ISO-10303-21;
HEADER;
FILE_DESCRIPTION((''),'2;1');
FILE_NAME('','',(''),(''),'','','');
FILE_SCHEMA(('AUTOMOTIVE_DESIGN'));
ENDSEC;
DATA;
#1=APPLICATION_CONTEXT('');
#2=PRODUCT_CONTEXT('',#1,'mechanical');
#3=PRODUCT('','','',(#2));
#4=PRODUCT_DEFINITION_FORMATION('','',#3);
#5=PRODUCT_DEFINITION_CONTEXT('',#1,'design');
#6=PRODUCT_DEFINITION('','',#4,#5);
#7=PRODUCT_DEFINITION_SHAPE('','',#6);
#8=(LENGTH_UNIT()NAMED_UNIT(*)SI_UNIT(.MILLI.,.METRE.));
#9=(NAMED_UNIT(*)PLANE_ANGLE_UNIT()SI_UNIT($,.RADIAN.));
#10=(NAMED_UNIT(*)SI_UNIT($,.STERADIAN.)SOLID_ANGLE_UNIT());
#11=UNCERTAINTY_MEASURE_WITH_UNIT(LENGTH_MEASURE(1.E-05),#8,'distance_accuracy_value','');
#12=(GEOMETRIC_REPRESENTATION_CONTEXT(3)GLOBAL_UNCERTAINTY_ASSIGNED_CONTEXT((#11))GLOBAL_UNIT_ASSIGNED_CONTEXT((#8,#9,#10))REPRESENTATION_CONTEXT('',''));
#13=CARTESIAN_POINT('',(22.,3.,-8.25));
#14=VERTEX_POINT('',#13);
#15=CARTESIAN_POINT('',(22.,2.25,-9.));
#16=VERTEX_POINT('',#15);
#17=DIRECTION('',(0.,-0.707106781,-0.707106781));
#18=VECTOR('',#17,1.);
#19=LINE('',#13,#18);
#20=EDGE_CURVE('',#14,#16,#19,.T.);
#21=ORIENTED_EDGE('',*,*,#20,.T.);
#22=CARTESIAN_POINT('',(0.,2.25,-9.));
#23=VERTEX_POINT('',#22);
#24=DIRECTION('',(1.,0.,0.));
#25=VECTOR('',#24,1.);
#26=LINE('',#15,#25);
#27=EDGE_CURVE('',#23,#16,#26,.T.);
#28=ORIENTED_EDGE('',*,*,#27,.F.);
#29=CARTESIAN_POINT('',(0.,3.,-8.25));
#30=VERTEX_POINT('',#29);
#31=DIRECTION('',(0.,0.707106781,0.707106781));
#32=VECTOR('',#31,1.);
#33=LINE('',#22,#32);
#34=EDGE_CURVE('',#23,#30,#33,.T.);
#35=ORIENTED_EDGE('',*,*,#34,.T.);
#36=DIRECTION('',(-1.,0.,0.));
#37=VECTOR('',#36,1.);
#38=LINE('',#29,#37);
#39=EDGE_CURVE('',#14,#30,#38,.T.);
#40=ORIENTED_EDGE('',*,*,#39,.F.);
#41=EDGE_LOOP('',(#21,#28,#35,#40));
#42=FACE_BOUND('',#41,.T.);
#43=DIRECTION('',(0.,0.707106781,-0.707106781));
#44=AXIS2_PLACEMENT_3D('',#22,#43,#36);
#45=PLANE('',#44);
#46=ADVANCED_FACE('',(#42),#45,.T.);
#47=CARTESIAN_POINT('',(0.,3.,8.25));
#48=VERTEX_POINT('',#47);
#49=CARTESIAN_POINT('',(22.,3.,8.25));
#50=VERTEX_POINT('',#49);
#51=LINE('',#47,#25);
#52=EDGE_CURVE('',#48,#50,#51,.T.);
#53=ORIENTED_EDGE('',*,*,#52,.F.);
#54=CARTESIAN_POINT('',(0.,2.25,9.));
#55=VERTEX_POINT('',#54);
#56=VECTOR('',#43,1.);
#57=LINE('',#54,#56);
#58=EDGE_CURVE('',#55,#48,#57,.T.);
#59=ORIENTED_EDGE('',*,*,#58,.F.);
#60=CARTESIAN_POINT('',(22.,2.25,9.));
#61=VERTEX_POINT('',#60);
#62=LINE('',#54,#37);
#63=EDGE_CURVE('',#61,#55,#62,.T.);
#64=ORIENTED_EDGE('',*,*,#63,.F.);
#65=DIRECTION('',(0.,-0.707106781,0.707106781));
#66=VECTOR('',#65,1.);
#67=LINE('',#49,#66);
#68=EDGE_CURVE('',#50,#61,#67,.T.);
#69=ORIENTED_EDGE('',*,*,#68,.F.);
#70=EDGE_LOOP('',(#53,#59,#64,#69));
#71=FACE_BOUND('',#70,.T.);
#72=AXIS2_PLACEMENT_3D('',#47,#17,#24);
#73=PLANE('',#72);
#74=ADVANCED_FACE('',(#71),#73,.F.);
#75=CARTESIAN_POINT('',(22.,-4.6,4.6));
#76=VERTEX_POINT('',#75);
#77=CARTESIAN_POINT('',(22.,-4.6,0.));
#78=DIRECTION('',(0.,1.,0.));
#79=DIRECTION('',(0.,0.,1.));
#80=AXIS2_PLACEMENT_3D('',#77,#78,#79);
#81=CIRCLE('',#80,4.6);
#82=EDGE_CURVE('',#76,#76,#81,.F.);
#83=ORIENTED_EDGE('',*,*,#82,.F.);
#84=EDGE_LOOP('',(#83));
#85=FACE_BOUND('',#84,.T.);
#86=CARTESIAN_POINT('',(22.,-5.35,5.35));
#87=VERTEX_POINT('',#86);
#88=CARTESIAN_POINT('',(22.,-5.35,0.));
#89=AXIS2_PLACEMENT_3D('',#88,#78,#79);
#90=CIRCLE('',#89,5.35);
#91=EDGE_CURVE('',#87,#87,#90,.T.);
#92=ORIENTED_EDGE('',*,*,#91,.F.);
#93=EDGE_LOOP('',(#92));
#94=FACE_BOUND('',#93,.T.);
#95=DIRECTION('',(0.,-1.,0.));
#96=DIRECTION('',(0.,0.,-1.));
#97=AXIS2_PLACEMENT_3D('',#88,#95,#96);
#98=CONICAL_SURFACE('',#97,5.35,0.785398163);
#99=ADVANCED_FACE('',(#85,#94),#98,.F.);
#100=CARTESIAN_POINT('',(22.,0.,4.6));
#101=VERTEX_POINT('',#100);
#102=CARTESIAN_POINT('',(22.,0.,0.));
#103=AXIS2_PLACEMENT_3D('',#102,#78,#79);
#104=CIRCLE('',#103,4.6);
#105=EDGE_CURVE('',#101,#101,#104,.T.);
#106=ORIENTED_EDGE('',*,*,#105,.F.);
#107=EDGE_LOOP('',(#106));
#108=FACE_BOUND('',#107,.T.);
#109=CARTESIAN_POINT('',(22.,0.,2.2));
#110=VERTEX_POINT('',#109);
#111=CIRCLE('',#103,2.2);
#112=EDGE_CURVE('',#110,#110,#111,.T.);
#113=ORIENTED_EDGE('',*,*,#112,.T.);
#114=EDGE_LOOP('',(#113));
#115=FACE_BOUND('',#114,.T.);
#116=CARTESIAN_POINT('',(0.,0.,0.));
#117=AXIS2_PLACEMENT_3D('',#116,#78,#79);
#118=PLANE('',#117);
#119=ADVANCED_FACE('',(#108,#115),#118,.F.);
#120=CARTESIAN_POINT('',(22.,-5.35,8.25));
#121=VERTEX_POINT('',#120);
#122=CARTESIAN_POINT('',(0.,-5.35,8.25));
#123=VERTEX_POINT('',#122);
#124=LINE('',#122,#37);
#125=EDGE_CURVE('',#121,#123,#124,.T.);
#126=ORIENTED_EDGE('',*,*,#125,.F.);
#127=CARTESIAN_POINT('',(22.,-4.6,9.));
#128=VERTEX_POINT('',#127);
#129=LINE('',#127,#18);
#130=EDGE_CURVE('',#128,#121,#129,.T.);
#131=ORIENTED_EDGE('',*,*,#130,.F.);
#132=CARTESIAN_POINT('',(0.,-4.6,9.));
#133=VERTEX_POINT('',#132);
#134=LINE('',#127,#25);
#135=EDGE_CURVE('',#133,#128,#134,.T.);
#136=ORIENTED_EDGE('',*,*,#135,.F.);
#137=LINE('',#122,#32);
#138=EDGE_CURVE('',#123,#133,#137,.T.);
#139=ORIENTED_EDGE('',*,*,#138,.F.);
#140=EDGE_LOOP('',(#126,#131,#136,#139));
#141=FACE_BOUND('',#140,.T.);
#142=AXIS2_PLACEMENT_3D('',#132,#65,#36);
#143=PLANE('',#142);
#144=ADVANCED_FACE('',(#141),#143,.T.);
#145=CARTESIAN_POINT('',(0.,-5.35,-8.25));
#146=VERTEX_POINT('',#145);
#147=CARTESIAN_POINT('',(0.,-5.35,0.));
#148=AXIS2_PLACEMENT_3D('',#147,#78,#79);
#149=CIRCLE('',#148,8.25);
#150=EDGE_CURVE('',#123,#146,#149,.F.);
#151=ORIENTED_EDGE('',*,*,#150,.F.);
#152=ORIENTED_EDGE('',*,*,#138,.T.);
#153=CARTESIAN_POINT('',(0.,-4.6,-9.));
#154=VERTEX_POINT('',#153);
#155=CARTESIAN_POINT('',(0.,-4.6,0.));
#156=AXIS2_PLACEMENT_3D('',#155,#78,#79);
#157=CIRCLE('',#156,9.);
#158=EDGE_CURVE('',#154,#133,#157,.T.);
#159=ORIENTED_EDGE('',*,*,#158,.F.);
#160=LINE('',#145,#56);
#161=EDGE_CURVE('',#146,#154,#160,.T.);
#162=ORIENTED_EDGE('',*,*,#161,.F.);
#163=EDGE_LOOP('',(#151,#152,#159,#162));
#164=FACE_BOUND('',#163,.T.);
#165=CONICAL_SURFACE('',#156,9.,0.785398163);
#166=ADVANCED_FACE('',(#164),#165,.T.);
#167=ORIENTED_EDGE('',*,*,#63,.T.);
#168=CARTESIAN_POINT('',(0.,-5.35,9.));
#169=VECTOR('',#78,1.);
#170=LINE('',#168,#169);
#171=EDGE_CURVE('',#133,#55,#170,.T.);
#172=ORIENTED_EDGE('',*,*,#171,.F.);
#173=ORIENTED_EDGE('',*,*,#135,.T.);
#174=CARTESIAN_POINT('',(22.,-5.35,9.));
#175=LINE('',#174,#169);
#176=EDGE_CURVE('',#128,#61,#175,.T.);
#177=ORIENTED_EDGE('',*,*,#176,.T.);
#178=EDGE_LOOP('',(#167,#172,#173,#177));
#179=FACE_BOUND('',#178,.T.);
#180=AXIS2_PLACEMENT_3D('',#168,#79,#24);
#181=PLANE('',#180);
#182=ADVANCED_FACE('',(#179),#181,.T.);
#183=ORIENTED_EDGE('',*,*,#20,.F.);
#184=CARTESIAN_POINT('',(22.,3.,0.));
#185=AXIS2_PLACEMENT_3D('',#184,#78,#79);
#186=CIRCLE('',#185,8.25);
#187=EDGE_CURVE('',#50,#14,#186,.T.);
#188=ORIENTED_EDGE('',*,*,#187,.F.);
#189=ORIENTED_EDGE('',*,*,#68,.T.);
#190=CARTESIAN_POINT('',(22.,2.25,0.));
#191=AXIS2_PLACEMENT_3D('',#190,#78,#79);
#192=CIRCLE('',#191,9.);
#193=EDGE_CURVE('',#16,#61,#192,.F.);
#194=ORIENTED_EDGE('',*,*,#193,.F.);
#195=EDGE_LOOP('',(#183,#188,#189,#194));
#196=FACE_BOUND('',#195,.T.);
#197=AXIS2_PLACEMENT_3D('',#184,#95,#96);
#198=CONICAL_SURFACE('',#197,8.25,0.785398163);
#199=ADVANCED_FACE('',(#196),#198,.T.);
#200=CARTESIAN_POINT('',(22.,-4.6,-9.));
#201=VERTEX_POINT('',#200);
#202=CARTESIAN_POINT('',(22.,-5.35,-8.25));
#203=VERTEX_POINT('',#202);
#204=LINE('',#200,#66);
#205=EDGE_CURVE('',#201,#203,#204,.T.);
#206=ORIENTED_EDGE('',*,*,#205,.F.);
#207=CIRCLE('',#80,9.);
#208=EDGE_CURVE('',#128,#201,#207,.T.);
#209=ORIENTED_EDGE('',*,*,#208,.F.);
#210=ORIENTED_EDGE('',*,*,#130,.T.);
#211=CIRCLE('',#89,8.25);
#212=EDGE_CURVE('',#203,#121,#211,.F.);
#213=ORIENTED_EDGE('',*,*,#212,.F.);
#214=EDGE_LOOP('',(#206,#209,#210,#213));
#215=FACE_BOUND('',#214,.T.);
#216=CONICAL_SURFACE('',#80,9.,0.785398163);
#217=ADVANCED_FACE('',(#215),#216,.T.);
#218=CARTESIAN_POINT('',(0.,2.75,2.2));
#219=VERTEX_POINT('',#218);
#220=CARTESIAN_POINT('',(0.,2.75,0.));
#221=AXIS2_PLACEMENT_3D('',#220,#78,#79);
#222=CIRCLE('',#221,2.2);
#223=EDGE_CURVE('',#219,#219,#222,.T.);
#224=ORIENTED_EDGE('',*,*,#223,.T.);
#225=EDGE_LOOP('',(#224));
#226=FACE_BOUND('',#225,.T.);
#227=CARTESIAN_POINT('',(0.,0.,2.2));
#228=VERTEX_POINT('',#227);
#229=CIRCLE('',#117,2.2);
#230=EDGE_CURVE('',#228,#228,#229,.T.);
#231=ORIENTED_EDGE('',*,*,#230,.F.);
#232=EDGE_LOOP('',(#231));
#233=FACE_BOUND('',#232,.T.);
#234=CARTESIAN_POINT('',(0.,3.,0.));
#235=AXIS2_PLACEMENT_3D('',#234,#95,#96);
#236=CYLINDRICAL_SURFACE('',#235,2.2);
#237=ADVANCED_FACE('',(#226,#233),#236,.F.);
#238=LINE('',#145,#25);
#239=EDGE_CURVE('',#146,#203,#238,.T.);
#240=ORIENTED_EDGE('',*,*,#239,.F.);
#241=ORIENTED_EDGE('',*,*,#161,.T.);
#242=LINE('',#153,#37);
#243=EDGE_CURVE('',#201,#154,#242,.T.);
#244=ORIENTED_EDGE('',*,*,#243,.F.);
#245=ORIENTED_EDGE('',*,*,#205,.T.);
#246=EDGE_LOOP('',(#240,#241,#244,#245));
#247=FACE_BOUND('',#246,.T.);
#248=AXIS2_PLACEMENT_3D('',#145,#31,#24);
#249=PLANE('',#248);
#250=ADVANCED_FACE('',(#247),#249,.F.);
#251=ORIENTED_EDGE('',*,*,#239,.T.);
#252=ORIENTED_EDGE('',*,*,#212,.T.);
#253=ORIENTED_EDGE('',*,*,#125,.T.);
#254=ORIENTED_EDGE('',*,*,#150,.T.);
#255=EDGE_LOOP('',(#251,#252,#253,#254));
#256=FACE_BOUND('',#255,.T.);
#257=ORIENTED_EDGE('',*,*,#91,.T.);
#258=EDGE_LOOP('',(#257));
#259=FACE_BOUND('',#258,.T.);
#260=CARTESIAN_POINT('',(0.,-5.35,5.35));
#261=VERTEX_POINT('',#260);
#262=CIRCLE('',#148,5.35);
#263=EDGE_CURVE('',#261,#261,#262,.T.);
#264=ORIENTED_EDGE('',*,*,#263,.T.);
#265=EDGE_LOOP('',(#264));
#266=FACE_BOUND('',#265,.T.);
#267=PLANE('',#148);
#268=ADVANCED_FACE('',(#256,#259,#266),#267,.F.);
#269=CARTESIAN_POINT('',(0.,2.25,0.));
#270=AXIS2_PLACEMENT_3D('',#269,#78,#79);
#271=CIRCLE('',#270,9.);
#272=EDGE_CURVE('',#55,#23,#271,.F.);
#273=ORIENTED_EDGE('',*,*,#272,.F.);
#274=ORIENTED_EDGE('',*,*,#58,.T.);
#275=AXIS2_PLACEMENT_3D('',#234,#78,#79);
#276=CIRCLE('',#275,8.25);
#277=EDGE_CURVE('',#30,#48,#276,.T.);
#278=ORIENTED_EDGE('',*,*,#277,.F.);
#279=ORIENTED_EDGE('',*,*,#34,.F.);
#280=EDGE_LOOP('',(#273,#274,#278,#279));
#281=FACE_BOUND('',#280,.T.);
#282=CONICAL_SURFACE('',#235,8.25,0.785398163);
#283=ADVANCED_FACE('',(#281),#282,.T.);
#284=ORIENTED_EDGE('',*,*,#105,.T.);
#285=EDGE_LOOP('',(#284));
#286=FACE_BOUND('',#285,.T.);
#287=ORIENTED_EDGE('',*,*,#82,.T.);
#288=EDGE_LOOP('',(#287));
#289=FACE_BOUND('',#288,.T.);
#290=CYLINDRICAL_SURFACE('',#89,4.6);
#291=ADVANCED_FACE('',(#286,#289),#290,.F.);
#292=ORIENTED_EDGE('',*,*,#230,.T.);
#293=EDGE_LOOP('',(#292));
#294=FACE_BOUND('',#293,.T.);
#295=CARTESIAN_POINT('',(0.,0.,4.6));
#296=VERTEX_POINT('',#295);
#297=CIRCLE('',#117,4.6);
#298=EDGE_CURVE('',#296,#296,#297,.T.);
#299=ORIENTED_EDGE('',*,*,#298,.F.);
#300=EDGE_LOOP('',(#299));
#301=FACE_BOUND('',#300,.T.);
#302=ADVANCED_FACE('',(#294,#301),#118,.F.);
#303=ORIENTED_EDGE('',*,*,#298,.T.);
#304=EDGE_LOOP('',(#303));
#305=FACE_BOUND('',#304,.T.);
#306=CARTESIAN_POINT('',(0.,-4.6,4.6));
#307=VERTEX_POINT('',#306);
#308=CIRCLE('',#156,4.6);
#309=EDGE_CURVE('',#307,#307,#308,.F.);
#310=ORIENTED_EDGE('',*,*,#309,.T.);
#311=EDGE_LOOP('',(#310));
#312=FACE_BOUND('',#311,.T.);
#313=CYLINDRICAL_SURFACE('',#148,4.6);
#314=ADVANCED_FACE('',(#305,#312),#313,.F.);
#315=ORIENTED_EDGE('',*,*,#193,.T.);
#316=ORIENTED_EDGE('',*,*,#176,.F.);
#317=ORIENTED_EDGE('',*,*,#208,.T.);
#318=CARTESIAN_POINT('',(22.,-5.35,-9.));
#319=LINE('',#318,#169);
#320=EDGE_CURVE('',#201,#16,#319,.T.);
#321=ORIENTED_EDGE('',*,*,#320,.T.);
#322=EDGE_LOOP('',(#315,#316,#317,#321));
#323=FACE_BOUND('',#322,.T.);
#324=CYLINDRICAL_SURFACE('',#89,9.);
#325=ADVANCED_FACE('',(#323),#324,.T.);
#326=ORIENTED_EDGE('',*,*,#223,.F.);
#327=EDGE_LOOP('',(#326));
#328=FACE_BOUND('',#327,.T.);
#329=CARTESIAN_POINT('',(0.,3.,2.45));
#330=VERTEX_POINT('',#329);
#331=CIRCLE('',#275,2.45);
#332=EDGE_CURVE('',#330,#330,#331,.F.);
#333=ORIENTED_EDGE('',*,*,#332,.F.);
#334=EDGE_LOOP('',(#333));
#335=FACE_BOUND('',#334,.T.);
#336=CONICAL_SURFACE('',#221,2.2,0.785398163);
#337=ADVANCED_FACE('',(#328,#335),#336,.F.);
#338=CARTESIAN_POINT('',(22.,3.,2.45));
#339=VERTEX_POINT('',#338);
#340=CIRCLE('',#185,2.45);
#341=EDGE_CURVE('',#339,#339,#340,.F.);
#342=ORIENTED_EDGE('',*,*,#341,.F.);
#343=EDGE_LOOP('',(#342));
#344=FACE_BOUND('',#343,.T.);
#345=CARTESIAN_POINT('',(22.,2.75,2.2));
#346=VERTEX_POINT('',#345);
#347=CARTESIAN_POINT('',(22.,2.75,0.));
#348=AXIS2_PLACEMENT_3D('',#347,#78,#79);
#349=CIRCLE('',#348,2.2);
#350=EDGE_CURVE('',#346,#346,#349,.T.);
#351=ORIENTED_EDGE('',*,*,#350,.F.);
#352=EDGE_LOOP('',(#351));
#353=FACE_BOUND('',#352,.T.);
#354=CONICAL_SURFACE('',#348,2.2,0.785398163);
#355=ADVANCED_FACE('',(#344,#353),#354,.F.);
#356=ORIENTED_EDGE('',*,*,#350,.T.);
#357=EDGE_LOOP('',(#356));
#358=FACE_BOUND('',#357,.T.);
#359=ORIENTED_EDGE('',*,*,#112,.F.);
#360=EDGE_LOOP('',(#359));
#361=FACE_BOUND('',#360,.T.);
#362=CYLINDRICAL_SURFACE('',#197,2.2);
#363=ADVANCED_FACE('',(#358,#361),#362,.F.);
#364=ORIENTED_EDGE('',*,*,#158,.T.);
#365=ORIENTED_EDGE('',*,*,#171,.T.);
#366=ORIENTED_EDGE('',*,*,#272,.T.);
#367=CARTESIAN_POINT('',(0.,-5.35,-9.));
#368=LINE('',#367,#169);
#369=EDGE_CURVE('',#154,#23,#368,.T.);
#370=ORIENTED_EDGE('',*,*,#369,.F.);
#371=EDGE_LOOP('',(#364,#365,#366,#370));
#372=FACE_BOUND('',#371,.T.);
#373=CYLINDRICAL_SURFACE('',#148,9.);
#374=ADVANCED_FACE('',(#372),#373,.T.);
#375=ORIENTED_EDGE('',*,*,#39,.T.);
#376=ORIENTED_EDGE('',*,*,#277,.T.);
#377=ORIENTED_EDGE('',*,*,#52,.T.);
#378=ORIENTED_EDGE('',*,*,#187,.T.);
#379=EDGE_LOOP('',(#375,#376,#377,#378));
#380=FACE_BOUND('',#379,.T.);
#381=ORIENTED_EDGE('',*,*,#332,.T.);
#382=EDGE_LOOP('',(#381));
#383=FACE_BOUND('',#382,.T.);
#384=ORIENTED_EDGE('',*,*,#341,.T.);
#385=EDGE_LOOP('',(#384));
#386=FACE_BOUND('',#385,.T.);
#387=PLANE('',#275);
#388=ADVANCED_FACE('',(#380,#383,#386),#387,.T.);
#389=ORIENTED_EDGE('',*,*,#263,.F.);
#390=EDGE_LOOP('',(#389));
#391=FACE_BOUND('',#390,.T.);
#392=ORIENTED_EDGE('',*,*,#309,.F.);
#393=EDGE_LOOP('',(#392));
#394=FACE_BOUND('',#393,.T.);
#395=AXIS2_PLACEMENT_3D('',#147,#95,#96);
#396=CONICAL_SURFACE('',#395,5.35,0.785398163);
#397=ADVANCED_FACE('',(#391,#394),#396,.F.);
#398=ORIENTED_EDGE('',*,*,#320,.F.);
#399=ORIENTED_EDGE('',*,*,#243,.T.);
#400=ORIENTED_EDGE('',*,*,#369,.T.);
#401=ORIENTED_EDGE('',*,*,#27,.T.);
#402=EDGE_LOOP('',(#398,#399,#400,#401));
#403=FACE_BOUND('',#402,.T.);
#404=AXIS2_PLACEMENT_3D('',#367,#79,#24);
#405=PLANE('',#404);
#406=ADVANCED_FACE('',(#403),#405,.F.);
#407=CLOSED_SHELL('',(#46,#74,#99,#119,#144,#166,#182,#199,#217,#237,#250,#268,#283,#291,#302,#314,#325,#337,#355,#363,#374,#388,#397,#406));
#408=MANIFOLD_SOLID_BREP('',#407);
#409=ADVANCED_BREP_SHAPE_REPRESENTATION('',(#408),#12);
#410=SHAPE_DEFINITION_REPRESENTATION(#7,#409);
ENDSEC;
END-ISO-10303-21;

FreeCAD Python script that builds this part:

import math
import FreeCAD as App
import Part
import Sketcher
from FreeCAD import Vector
Q = App.Units.Quantity


def edges_at(feature, points):
    """Names of the edges that pass closest to the given points."""
    edges = feature.Shape.Edges
    near = lambda p: min(range(len(edges)), key=lambda i: edges[i].distToShape(Part.Vertex(*p))[0])
    return sorted({f"Edge{near(p) + 1}" for p in points})

doc = App.newDocument("Part")
params = doc.addObject("Spreadsheet::Sheet", "Params")
for row, (alias, value) in enumerate([
    ("sketch1_radius", "9 mm"),
    ("sketch1_diameter", "9.2 mm"),
    ("sketch1_width", "22 mm"),
    ("pad1_length", "5.35 mm"),
    ("sketch2_radius", "9 mm"),
    ("sketch2_diameter", "4.4 mm"),
    ("sketch2_width", "22 mm"),
    ("pad2_length", "3 mm"),
    ("chamfer_size", "0.75 mm"),
    ("chamfer2_size", "0.25 mm"),
], start=1):
    params.set(f"A{row}", alias)
    params.set(f"B{row}", "=" + value)
    params.setAlias(f"B{row}", alias)

body = doc.addObject("PartDesign::Body", "Body")

sketch1 = doc.addObject("Sketcher::SketchObject", "Sketch")
body.addObject(sketch1)
sketch1.AttachmentSupport = (doc.XZ_Plane, [""])
sketch1.MapMode = "FlatFace"
sketch1.addGeometry(Part.LineSegment(Vector(22, -9, 0), Vector(0, -9, 0)), False)
sketch1.addGeometry(Part.ArcOfCircle(Part.Circle(Vector(0, 0, 0), Vector(0, 0, 1), 9), math.radians(90), math.radians(270)), False)
sketch1.addGeometry(Part.LineSegment(Vector(0, 9, 0), Vector(22, 9, 0)), False)
sketch1.addGeometry(Part.ArcOfCircle(Part.Circle(Vector(22, 0, 0), Vector(0, 0, 1), 9), math.radians(-90), math.radians(90)), False)
sketch1.addGeometry(Part.Circle(Vector(22, 0, 0), Vector(0, 0, 1), 4.6), False)
sketch1.addGeometry(Part.Circle(Vector(0, 0, 0), Vector(0, 0, 1), 4.6), False)
sketch1.addConstraint(Sketcher.Constraint("Tangent", 0, 2, 1, 2))
sketch1.addConstraint(Sketcher.Constraint("Tangent", 1, 1, 2, 1))
sketch1.addConstraint(Sketcher.Constraint("Tangent", 2, 2, 3, 2))
sketch1.addConstraint(Sketcher.Constraint("Tangent", 3, 1, 0, 1))
sketch1.addConstraint(Sketcher.Constraint("Horizontal", 0))
sketch1.addConstraint(Sketcher.Constraint("Horizontal", 2))
sketch1.addConstraint(Sketcher.Constraint("Coincident", 1, 3, -1, 1))
sketch1.addConstraint(Sketcher.Constraint("Coincident", 5, 3, -1, 1))
sketch1.addConstraint(Sketcher.Constraint("Coincident", 4, 3, 3, 3))
sketch1.addConstraint(Sketcher.Constraint("Equal", 4, 5))
sketch1.addConstraint(Sketcher.Constraint("Radius", 1, Q("9 mm")))
sketch1.addConstraint(Sketcher.Constraint("Diameter", 4, Q("9.2 mm")))
sketch1.addConstraint(Sketcher.Constraint("DistanceX", 0, 2, 0, 1, Q("22 mm")))
sketch1.setExpression("Constraints[10]", "Params.sketch1_radius")
sketch1.setExpression("Constraints[11]", "Params.sketch1_diameter")
sketch1.setExpression("Constraints[12]", "Params.sketch1_width")
pad1 = doc.addObject("PartDesign::Pad", "Pad")
body.addObject(pad1)
pad1.Profile = sketch1
pad1.setExpression("Length", "Params.pad1_length")

sketch2 = doc.addObject("Sketcher::SketchObject", "Sketch001")
body.addObject(sketch2)
sketch2.AttachmentSupport = (doc.XZ_Plane, [""])
sketch2.MapMode = "FlatFace"
sketch2.AttachmentOffset = App.Placement(Vector(0, 0, -3), App.Rotation())
sketch2.addGeometry(Part.LineSegment(Vector(22, -9, 0), Vector(0, -9, 0)), False)
sketch2.addGeometry(Part.ArcOfCircle(Part.Circle(Vector(0, 0, 0), Vector(0, 0, 1), 9), math.radians(90), math.radians(270)), False)
sketch2.addGeometry(Part.LineSegment(Vector(0, 9, 0), Vector(22, 9, 0)), False)
sketch2.addGeometry(Part.ArcOfCircle(Part.Circle(Vector(22, 0, 0), Vector(0, 0, 1), 9), math.radians(-90), math.radians(90)), False)
sketch2.addGeometry(Part.Circle(Vector(0, 0, 0), Vector(0, 0, 1), 2.2), False)
sketch2.addGeometry(Part.Circle(Vector(22, 0, 0), Vector(0, 0, 1), 2.2), False)
sketch2.addConstraint(Sketcher.Constraint("Tangent", 0, 2, 1, 2))
sketch2.addConstraint(Sketcher.Constraint("Tangent", 1, 1, 2, 1))
sketch2.addConstraint(Sketcher.Constraint("Tangent", 2, 2, 3, 2))
sketch2.addConstraint(Sketcher.Constraint("Tangent", 3, 1, 0, 1))
sketch2.addConstraint(Sketcher.Constraint("Horizontal", 0))
sketch2.addConstraint(Sketcher.Constraint("Horizontal", 2))
sketch2.addConstraint(Sketcher.Constraint("Coincident", 1, 3, -1, 1))
sketch2.addConstraint(Sketcher.Constraint("Coincident", 4, 3, -1, 1))
sketch2.addConstraint(Sketcher.Constraint("Coincident", 5, 3, 3, 3))
sketch2.addConstraint(Sketcher.Constraint("Equal", 4, 5))
sketch2.addConstraint(Sketcher.Constraint("Radius", 1, Q("9 mm")))
sketch2.addConstraint(Sketcher.Constraint("Diameter", 4, Q("4.4 mm")))
sketch2.addConstraint(Sketcher.Constraint("DistanceX", 0, 2, 0, 1, Q("22 mm")))
sketch2.setExpression("Constraints[10]", "Params.sketch2_radius")
sketch2.setExpression("Constraints[11]", "Params.sketch2_diameter")
sketch2.setExpression("Constraints[12]", "Params.sketch2_width")
pad2 = doc.addObject("PartDesign::Pad", "Pad001")
body.addObject(pad2)
pad2.Profile = sketch2
pad2.setExpression("Length", "Params.pad2_length")
doc.recompute()

chamfer = doc.addObject("PartDesign::Chamfer", "Chamfer")
body.addObject(chamfer)
chamfer.Base = (pad2, edges_at(pad2, [
    (0, -5.35, -4.6),
    (11, -5.35, 9),
    (11, 3, -9),
    (31, -5.35, 0),
    (11, 3, 9),
    (31, 3, 0),
    (-9, 3, 0),
    (11, -5.35, -9),
    (-9, -5.35, 0),
    (22, -5.35, -4.6),
]))
chamfer.setExpression("Size", "Params.chamfer_size")
doc.recompute()

chamfer2 = doc.addObject("PartDesign::Chamfer", "Chamfer001")
body.addObject(chamfer2)
chamfer2.Base = (chamfer, edges_at(chamfer, [(22, 3, -2.2), (0, 3, -2.2)]))
chamfer2.setExpression("Size", "Params.chamfer2_size")

doc.recompute()
